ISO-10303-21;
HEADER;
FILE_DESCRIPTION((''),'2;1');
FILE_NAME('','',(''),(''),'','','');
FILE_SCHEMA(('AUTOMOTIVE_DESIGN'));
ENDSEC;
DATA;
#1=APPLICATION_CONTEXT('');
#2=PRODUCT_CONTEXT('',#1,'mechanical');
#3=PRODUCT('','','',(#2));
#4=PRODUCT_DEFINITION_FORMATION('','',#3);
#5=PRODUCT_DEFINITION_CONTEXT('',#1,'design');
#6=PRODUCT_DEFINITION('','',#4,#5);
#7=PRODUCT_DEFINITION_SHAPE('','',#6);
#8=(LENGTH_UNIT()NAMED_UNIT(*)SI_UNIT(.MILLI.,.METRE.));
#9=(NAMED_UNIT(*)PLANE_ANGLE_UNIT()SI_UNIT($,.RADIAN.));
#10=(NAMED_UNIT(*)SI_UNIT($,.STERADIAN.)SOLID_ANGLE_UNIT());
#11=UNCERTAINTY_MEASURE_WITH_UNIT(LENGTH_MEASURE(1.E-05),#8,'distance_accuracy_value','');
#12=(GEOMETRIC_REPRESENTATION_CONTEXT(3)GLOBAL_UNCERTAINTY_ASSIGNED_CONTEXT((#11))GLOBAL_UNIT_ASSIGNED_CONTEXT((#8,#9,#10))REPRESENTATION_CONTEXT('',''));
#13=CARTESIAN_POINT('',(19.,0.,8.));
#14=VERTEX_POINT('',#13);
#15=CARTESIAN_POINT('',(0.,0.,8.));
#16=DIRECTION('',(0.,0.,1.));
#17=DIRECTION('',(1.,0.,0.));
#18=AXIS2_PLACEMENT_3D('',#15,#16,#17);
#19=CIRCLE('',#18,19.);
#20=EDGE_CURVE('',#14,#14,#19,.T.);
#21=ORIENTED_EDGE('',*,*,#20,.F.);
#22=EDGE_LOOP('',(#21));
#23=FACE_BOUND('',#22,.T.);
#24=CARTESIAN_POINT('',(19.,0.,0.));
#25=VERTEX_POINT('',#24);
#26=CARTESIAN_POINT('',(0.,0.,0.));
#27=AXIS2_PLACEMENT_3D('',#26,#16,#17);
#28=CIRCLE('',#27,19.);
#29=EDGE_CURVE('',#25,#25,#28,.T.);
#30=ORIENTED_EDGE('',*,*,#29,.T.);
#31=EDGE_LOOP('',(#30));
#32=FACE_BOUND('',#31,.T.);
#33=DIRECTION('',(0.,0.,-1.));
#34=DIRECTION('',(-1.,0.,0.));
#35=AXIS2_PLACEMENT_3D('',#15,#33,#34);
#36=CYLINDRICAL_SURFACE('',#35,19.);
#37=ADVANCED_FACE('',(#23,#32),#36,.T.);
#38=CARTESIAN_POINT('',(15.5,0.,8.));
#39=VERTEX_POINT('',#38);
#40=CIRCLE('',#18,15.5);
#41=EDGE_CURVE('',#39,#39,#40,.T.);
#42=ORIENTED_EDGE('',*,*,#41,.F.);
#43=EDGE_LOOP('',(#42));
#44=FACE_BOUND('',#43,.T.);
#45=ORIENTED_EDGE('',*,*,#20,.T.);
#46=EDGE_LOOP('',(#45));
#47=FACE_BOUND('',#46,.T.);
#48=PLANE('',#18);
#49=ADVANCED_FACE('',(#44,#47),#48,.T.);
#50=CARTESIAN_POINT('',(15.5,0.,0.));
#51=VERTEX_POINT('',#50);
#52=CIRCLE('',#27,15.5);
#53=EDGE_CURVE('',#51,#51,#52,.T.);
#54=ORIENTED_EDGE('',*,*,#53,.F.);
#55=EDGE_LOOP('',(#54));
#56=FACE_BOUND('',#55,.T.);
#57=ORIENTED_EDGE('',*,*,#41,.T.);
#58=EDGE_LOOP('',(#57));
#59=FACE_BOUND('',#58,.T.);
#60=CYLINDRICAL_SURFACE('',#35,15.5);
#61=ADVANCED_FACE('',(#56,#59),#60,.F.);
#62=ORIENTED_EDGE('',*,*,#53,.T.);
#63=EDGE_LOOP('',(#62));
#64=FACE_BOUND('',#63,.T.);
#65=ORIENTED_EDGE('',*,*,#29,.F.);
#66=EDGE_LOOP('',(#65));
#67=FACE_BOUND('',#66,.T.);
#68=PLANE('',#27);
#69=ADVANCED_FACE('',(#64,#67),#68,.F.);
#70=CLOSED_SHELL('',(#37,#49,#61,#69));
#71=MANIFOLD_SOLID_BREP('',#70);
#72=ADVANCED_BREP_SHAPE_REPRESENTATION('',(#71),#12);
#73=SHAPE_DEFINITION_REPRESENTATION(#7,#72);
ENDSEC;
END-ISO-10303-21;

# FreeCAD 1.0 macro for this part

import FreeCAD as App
import Part
import Sketcher
Q = App.Units.Quantity

doc = App.newDocument("Part")
body = doc.addObject("PartDesign::Body", "Body")

# Sketch on XY plane
sketch1 = body.newObject("Sketcher::SketchObject", "Sketch")
sketch1.AttachmentSupport = (doc.getObject("XY_Plane"), [""])
sketch1.MapMode = "FlatFace"
sketch1.addGeometry(Part.Circle(App.Vector(0, 0, 0), App.Vector(0, 0, 1), 19), False)
sketch1.addGeometry(Part.Circle(App.Vector(0, 0, 0), App.Vector(0, 0, 1), 16), False)
sketch1.addConstraint(Sketcher.Constraint("Coincident", 0, 3, -1, 1))
sketch1.addConstraint(Sketcher.Constraint("Coincident", 1, 3, -1, 1))
sketch1.addConstraint(Sketcher.Constraint("Diameter", 0, Q("38 mm")))
sketch1.addConstraint(Sketcher.Constraint("Diameter", 1, Q("31 mm")))
pad1 = body.newObject("PartDesign::Pad", "Pad")
pad1.Profile = sketch1
pad1.Length = 8

doc.recompute()
